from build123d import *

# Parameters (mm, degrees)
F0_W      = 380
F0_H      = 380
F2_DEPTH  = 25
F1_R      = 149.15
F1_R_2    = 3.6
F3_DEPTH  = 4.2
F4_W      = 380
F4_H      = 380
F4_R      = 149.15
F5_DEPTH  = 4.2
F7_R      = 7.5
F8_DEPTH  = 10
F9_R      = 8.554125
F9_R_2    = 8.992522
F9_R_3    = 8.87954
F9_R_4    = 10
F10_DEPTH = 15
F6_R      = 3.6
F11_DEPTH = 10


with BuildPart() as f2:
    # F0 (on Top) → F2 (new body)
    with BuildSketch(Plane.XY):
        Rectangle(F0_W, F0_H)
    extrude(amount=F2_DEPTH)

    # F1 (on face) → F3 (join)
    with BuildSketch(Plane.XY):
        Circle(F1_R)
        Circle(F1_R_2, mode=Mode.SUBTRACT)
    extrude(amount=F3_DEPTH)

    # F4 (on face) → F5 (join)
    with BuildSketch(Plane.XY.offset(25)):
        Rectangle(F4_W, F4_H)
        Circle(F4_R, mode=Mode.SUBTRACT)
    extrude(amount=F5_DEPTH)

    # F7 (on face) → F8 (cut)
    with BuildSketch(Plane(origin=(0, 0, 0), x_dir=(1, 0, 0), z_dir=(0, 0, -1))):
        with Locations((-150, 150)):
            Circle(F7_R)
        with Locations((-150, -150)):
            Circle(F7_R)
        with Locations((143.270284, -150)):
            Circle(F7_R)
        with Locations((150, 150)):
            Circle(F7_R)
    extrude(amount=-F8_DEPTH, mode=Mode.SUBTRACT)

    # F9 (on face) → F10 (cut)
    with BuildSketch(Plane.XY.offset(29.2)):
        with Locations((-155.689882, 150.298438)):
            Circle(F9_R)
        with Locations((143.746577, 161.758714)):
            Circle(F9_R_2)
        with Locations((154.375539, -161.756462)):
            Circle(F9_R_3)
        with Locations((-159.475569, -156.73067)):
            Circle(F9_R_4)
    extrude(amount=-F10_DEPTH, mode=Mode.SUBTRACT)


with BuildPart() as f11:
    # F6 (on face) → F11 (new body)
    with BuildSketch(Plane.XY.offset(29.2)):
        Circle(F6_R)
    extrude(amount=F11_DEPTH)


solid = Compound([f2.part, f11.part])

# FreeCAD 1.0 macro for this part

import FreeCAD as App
import Part
import Sketcher
from FreeCAD import Vector
Q = App.Units.Quantity


def add_polygon(sketch, points):
    """Adds a closed chain of lines whose ends are joined by coincident constraints."""
    first, n = sketch.GeometryCount, len(points)
    for a, b in zip(points, points[1:] + points[:1]):
        sketch.addGeometry(Part.LineSegment(App.Vector(*a, 0), App.Vector(*b, 0)), False)
    for i in range(n):
        sketch.addConstraint(Sketcher.Constraint("Coincident", first + i, 2, first + (i + 1) % n, 1))

doc = App.newDocument("Part")
params = doc.addObject("Spreadsheet::Sheet", "Params")
for row, (alias, value) in enumerate([
    ("sketch1_width", "380 mm"),
    ("pad1_length", "25 mm"),
    ("sketch2_diameter", "298.3 mm"),
    ("sketch2_diameter2", "7.2 mm"),
    ("pad2_length", "4.2 mm"),
    ("sketch3_diameter", "298.3 mm"),
    ("sketch3_width", "380 mm"),
    ("pad3_length", "4.2 mm"),
    ("sketch4_diameter", "15 mm"),
    ("pocket1_length", "10 mm"),
    ("sketch5_diameter", "20 mm"),
    ("pocket2_length", "15 mm"),
    ("sketch6_diameter", "7.2 mm"),
    ("pad4_length", "10 mm"),
], start=1):
    params.set(f"A{row}", alias)
    params.set(f"B{row}", "=" + value)
    params.setAlias(f"B{row}", alias)

body = doc.addObject("PartDesign::Body", "Body")

# Sketch on XY plane
sketch1 = doc.addObject("Sketcher::SketchObject", "Sketch")
body.addObject(sketch1)
sketch1.AttachmentSupport = (doc.XY_Plane, [""])
sketch1.MapMode = "FlatFace"
add_polygon(sketch1, [(-190, 190), (-190, -190), (190, -190), (190, 190)])  # lines 0-3
sketch1.addConstraint([
    Sketcher.Constraint("Vertical", 0),
    Sketcher.Constraint("Horizontal", 1),
    Sketcher.Constraint("Vertical", 2),
    Sketcher.Constraint("Horizontal", 3),
    Sketcher.Constraint("Symmetric", 0, 2, 2, 2, -1, 1),
    Sketcher.Constraint("Equal", 3, 0),
    Sketcher.Constraint("DistanceX", 1, 1, 1, 2, Q("380 mm")),
])
sketch1.setExpression("Constraints[10]", "Params.sketch1_width")
pad1 = doc.addObject("PartDesign::Pad", "Pad")
body.addObject(pad1)
pad1.Profile = sketch1
pad1.setExpression("Length", "Params.pad1_length")

# Sketch on XY plane
sketch2 = doc.addObject("Sketcher::SketchObject", "Sketch001")
body.addObject(sketch2)
sketch2.AttachmentSupport = (doc.XY_Plane, [""])
sketch2.MapMode = "FlatFace"
sketch2.addGeometry([
    Part.Circle(Vector(0, 0, 0), Vector(0, 0, 1), 149.15),
    Part.Circle(Vector(0, 0, 0), Vector(0, 0, 1), 3.6),
], False)
sketch2.addConstraint([
    Sketcher.Constraint("Coincident", 0, 3, -1, 1),
    Sketcher.Constraint("Coincident", 1, 3, -1, 1),
    Sketcher.Constraint("Diameter", 0, Q("298.3 mm")),
    Sketcher.Constraint("Diameter", 1, Q("7.2 mm")),
])
sketch2.setExpression("Constraints[2]", "Params.sketch2_diameter")
sketch2.setExpression("Constraints[3]", "Params.sketch2_diameter2")
pad2 = doc.addObject("PartDesign::Pad", "Pad001")
body.addObject(pad2)
pad2.Profile = sketch2
pad2.setExpression("Length", "Params.pad2_length")

# Sketch on XY plane
sketch3 = doc.addObject("Sketcher::SketchObject", "Sketch002")
body.addObject(sketch3)
sketch3.AttachmentSupport = (doc.XY_Plane, [""])
sketch3.MapMode = "FlatFace"
sketch3.AttachmentOffset = App.Placement(Vector(0, 0, 25), App.Rotation())
add_polygon(sketch3, [(-190, 190), (-190, -190), (190, -190), (190, 190)])  # lines 0-3
sketch3.addGeometry(Part.Circle(Vector(0, 0, 0), Vector(0, 0, 1), 149.15), False)  # 4
sketch3.addConstraint([
    Sketcher.Constraint("Vertical", 0),
    Sketcher.Constraint("Horizontal", 1),
    Sketcher.Constraint("Vertical", 2),
    Sketcher.Constraint("Horizontal", 3),
    Sketcher.Constraint("Coincident", 4, 3, -1, 1),
    Sketcher.Constraint("Symmetric", 0, 2, 2, 2, -1, 1),
    Sketcher.Constraint("Equal", 3, 0),
    Sketcher.Constraint("Diameter", 4, Q("298.3 mm")),
    Sketcher.Constraint("DistanceX", 1, 1, 1, 2, Q("380 mm")),
])
sketch3.setExpression("Constraints[11]", "Params.sketch3_diameter")
sketch3.setExpression("Constraints[12]", "Params.sketch3_width")
pad3 = doc.addObject("PartDesign::Pad", "Pad002")
body.addObject(pad3)
pad3.Profile = sketch3
pad3.setExpression("Length", "Params.pad3_length")

# Sketch on XY plane
sketch4 = doc.addObject("Sketcher::SketchObject", "Sketch003")
body.addObject(sketch4)
sketch4.AttachmentSupport = (doc.XY_Plane, [""])
sketch4.MapMode = "FlatFace"
sketch4.addGeometry([
    Part.Circle(Vector(-150, -150, 0), Vector(0, 0, 1), 7.5),
    Part.Circle(Vector(-150, 150, 0), Vector(0, 0, 1), 7.5),
    Part.Circle(Vector(143.270284, 150, 0), Vector(0, 0, 1), 7.5),
    Part.Circle(Vector(150, -150, 0), Vector(0, 0, 1), 7.5),
], False)
sketch4.addConstraint([
    Sketcher.Constraint("Equal", 0, 1),
    Sketcher.Constraint("Equal", 1, 2),
    Sketcher.Constraint("Equal", 2, 3),
    Sketcher.Constraint("Symmetric", 1, 3, 3, 3, -1, 1),
    Sketcher.Constraint("Symmetric", 0, 3, 3, 3, -2),
    Sketcher.Constraint("Horizontal", 1, 3, 2, 3),
    Sketcher.Constraint("Diameter", 0, Q("15 mm")),
    Sketcher.Constraint("DistanceX", 0, 3, -1, 1, Q("150 mm")),
    Sketcher.Constraint("DistanceY", 0, 3, -1, 1, Q("150 mm")),
    Sketcher.Constraint("DistanceX", -1, 1, 2, 3, Q("143.270284 mm")),
])
sketch4.setExpression("Constraints[6]", "Params.sketch4_diameter")
pocket1 = doc.addObject("PartDesign::Pocket", "Pocket")
body.addObject(pocket1)
pocket1.Profile = sketch4
pocket1.setExpression("Length", "Params.pocket1_length")
pocket1.Reversed = True

# Sketch on XY plane
sketch5 = doc.addObject("Sketcher::SketchObject", "Sketch004")
body.addObject(sketch5)
sketch5.AttachmentSupport = (doc.XY_Plane, [""])
sketch5.MapMode = "FlatFace"
sketch5.AttachmentOffset = App.Placement(Vector(0, 0, 29.2), App.Rotation())
sketch5.addGeometry([
    Part.Circle(Vector(-155.689882, 150.298438, 0), Vector(0, 0, 1), 8.554125),
    Part.Circle(Vector(143.746577, 161.758714, 0), Vector(0, 0, 1), 8.992522),
    Part.Circle(Vector(154.375539, -161.756462, 0), Vector(0, 0, 1), 8.87954),
    Part.Circle(Vector(-159.475569, -156.73067, 0), Vector(0, 0, 1), 10),
], False)
sketch5.addConstraint([
    Sketcher.Constraint("Diameter", 3, Q("20 mm")),
    Sketcher.Constraint("Diameter", 0, Q("17.10825 mm")),
    Sketcher.Constraint("Diameter", 2, Q("17.75908 mm")),
    Sketcher.Constraint("Diameter", 1, Q("17.985044 mm")),
    Sketcher.Constraint("DistanceY", 2, 3, 0, 3, Q("312.0549 mm")),
    Sketcher.Constraint("DistanceY", -1, 1, 0, 3, Q("150.298438 mm")),
    Sketcher.Constraint("DistanceX", -1, 1, 2, 3, Q("154.375539 mm")),
    Sketcher.Constraint("DistanceX", 3, 3, -1, 1, Q("159.475569 mm")),
    Sketcher.Constraint("DistanceY", 3, 3, -1, 1, Q("156.73067 mm")),
    Sketcher.Constraint("DistanceX", 0, 3, 1, 3, Q("299.436459 mm")),
    Sketcher.Constraint("DistanceX", 0, 3, 2, 3, Q("310.065421 mm")),
    Sketcher.Constraint("DistanceY", -1, 1, 1, 3, Q("161.758714 mm")),
])
sketch5.setExpression("Constraints[0]", "Params.sketch5_diameter")
pocket2 = doc.addObject("PartDesign::Pocket", "Pocket001")
body.addObject(pocket2)
pocket2.Profile = sketch5
pocket2.setExpression("Length", "Params.pocket2_length")
body2 = doc.addObject("PartDesign::Body", "Body001")

# Sketch on XY plane
sketch6 = doc.addObject("Sketcher::SketchObject", "Sketch005")
body2.addObject(sketch6)
sketch6.AttachmentSupport = (doc.getObject("XY_Plane001"), [""])
sketch6.MapMode = "FlatFace"
sketch6.AttachmentOffset = App.Placement(Vector(0, 0, 29.2), App.Rotation())
sketch6.addGeometry(Part.Circle(Vector(0, 0, 0), Vector(0, 0, 1), 3.6), False)
sketch6.addConstraint([
    Sketcher.Constraint("Coincident", 0, 3, -1, 1),
    Sketcher.Constraint("Diameter", 0, Q("7.2 mm")),
])
sketch6.setExpression("Constraints[1]", "Params.sketch6_diameter")
pad4 = doc.addObject("PartDesign::Pad", "Pad003")
body2.addObject(pad4)
pad4.Profile = sketch6
pad4.setExpression("Length", "Params.pad4_length")

doc.recompute()
